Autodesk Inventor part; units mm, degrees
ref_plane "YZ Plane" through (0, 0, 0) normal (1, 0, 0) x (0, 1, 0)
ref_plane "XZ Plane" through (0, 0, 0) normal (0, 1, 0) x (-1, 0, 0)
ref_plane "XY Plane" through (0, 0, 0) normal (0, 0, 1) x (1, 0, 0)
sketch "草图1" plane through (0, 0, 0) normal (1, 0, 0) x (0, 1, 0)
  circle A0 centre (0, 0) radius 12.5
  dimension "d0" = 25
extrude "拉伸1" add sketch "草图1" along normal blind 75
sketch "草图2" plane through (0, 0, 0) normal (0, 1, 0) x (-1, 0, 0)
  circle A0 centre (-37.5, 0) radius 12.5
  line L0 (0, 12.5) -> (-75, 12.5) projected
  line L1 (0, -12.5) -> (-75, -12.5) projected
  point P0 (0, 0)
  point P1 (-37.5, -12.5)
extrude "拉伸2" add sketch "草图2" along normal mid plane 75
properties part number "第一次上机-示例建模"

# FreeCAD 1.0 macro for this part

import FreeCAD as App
import Part
import Sketcher

V = App.Vector

doc = App.newDocument("Part")
params = doc.addObject("Spreadsheet::Sheet", "Params")
for row, (alias, value) in enumerate([
    ("sketch1_diameter", "25 mm"),
    ("pad1_length", "75 mm"),
    ("sketch2_diameter", "25 mm"),
    ("pad2_length", "75 mm"),
], start=1):
    params.set(f"A{row}", alias)
    params.set(f"B{row}", "=" + value)
    params.setAlias(f"B{row}", alias)

body = doc.addObject("PartDesign::Body", "Body")

sketch1 = doc.addObject("Sketcher::SketchObject", "Sketch")
body.addObject(sketch1)
sketch1.AttachmentSupport = (doc.YZ_Plane, [""])
sketch1.MapMode = "FlatFace"
sketch1.addGeometry(Part.Circle(V(0, 0, 0), V(0, 0, 1), 12), False)
sketch1.addConstraint([
    Sketcher.Constraint("Coincident", 0, 3, -1, 1),
    Sketcher.Constraint("Diameter", 0, 25.0),
])
sketch1.setExpression("Constraints[1]", "Params.sketch1_diameter")
pad1 = doc.addObject("PartDesign::Pad", "Pad")
body.addObject(pad1)
pad1.Profile = sketch1
pad1.setExpression("Length", "Params.pad1_length")

sketch2 = doc.addObject("Sketcher::SketchObject", "Sketch001")
body.addObject(sketch2)
sketch2.AttachmentSupport = (doc.XZ_Plane, [""])
sketch2.MapMode = "FlatFace"
sketch2.addGeometry(Part.Circle(V(38, 0, 0), V(0, 0, 1), 12), False)
sketch2.addConstraint([
    Sketcher.Constraint("PointOnObject", 0, 3, -1),
    Sketcher.Constraint("Diameter", 0, 25.0),
    Sketcher.Constraint("DistanceX", -1, 1, 0, 3, 37.5),
])
sketch2.setExpression("Constraints[1]", "Params.sketch2_diameter")
pad2 = doc.addObject("PartDesign::Pad", "Pad001")
body.addObject(pad2)
pad2.Profile = sketch2
pad2.setExpression("Length", "Params.pad2_length")
pad2.Midplane = True

doc.recompute()
